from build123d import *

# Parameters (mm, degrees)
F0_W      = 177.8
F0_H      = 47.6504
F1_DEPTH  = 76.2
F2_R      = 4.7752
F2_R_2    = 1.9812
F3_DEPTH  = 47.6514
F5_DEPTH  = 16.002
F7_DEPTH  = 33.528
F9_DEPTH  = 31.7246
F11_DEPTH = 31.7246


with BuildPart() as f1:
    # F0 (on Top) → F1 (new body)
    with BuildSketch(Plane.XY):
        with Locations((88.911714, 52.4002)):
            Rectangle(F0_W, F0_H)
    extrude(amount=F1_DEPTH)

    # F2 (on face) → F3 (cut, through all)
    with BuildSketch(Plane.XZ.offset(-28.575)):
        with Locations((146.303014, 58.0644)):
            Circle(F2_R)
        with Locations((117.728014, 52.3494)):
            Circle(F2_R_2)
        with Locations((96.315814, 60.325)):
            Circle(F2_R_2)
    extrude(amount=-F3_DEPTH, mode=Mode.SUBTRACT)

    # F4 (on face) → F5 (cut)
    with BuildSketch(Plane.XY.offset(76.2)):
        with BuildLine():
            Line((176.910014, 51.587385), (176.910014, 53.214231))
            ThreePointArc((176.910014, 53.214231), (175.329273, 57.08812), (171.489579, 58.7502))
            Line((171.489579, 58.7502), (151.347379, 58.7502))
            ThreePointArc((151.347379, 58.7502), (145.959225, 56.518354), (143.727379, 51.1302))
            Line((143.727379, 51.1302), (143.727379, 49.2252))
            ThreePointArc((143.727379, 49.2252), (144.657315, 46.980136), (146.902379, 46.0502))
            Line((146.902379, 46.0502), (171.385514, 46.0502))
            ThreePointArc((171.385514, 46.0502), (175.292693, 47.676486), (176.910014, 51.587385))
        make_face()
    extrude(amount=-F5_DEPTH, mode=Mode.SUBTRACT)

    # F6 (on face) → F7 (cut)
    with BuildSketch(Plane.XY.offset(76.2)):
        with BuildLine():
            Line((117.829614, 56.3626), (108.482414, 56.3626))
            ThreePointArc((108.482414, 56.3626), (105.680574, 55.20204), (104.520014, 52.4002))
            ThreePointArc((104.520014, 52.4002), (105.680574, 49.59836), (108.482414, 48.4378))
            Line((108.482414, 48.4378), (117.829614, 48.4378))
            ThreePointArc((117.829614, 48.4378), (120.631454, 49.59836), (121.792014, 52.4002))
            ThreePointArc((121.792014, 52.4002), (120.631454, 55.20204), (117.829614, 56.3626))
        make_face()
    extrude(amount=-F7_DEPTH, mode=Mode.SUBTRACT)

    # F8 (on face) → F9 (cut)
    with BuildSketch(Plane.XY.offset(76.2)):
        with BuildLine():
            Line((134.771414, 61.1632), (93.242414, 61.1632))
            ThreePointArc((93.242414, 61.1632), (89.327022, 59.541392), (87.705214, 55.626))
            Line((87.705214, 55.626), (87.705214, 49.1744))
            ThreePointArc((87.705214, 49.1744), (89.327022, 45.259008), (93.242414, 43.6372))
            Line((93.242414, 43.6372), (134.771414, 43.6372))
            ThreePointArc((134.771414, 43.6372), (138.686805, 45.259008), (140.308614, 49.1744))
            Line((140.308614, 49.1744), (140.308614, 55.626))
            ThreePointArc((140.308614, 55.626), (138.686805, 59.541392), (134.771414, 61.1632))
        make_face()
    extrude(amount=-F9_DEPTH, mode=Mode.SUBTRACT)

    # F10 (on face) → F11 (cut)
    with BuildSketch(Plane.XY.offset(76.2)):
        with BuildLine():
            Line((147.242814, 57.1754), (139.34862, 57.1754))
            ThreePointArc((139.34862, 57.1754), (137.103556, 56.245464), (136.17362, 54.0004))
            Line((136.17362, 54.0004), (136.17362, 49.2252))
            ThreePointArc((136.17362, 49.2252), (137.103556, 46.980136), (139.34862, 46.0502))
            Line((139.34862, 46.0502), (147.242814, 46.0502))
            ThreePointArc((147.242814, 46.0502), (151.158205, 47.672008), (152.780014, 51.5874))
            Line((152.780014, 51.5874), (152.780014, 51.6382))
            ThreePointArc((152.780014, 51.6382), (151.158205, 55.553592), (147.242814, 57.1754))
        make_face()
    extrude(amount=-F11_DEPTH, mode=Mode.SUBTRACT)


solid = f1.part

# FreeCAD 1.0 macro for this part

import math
import FreeCAD as App
import Part
import Sketcher
from FreeCAD import Vector
Q = App.Units.Quantity

doc = App.newDocument("Part")
params = doc.addObject("Spreadsheet::Sheet", "Params")
for row, (alias, value) in enumerate([
    ("sketch1_width", "7 in"),
    ("sketch1_height", "1.876 in"),
    ("pad1_length", "3 in"),
    ("sketch2_diameter", "0.376 in"),
    ("sketch2_diameter2", "0.156 in"),
    ("sketch3_radius", "0.3 in"),
    ("sketch3_radius2", "0.218 in"),
    ("sketch3_radius3", "0.125 in"),
    ("sketch3_width", "0.793 in"),
    ("pocket2_length", "0.63 in"),
    ("sketch4_radius", "0.156 in"),
    ("sketch4_width", "0.368 in"),
    ("pocket3_length", "1.32 in"),
    ("sketch5_radius", "0.218 in"),
    ("sketch5_width", "1.635 in"),
    ("sketch5_height", "0.254 in"),
    ("pocket4_length", "1.249 in"),
    ("sketch6_radius", "0.125 in"),
    ("sketch6_radius2", "0.218 in"),
    ("sketch6_height", "0.188 in"),
    ("pocket5_length", "1.249 in"),
], start=1):
    params.set(f"A{row}", alias)
    params.set(f"B{row}", "=" + value)
    params.setAlias(f"B{row}", alias)

body = doc.addObject("PartDesign::Body", "Body")

sketch1 = body.newObject("Sketcher::SketchObject", "Sketch")
sketch1.AttachmentSupport = (doc.getObject("XY_Plane"), [""])
sketch1.MapMode = "FlatFace"
sketch1.addGeometry(Part.LineSegment(Vector(0, 76, 0), Vector(0, 29, 0)), False)
sketch1.addGeometry(Part.LineSegment(Vector(0, 29, 0), Vector(178, 29, 0)), False)
sketch1.addGeometry(Part.LineSegment(Vector(178, 29, 0), Vector(178, 76, 0)), False)
sketch1.addGeometry(Part.LineSegment(Vector(178, 76, 0), Vector(0, 76, 0)), False)
sketch1.addConstraint(Sketcher.Constraint("Coincident", 0, 2, 1, 1))
sketch1.addConstraint(Sketcher.Constraint("Coincident", 1, 2, 2, 1))
sketch1.addConstraint(Sketcher.Constraint("Coincident", 2, 2, 3, 1))
sketch1.addConstraint(Sketcher.Constraint("Coincident", 3, 2, 0, 1))
sketch1.addConstraint(Sketcher.Constraint("Vertical", 0))
sketch1.addConstraint(Sketcher.Constraint("Horizontal", 1))
sketch1.addConstraint(Sketcher.Constraint("Vertical", 2))
sketch1.addConstraint(Sketcher.Constraint("Horizontal", 3))
sketch1.addConstraint(Sketcher.Constraint("DistanceX", 1, 1, 1, 2, Q("7 in")))
sketch1.addConstraint(Sketcher.Constraint("DistanceY", 0, 2, 0, 1, Q("1.876 in")))
sketch1.addConstraint(Sketcher.Constraint("DistanceY", -1, 1, 0, 2, Q("1.125 in")))
sketch1.addConstraint(Sketcher.Constraint("DistanceX", -1, 1, 0, 2, Q("0.011714 mm")))
sketch1.setExpression("Constraints[8]", "Params.sketch1_width")
sketch1.setExpression("Constraints[9]", "Params.sketch1_height")
pad1 = body.newObject("PartDesign::Pad", "Pad")
pad1.Profile = sketch1
pad1.setExpression("Length", "Params.pad1_length")

sketch2 = body.newObject("Sketcher::SketchObject", "Sketch001")
sketch2.AttachmentSupport = (doc.getObject("XZ_Plane"), [""])
sketch2.MapMode = "FlatFace"
sketch2.AttachmentOffset = App.Placement(Vector(0, 0, -1.125 * 25.4), App.Rotation())
sketch2.addGeometry(Part.Circle(Vector(146.3, 58.1, 0), Vector(0, 0, 1), 4.8), False)
sketch2.addGeometry(Part.Circle(Vector(117.7, 52.3, 0), Vector(0, 0, 1), 2), False)
sketch2.addGeometry(Part.Circle(Vector(96.3, 60.3, 0), Vector(0, 0, 1), 2), False)
sketch2.addConstraint(Sketcher.Constraint("Equal", 1, 2))
sketch2.addConstraint(Sketcher.Constraint("Diameter", 0, Q("0.376 in")))
sketch2.addConstraint(Sketcher.Constraint("Diameter", 1, Q("0.156 in")))
sketch2.addConstraint(Sketcher.Constraint("DistanceY", -1, 1, 0, 3, Q("2.286 in")))
sketch2.addConstraint(Sketcher.Constraint("DistanceY", -1, 1, 1, 3, Q("2.061 in")))
sketch2.addConstraint(Sketcher.Constraint("DistanceY", -1, 1, 2, 3, Q("2.375 in")))
sketch2.addConstraint(Sketcher.Constraint("DistanceX", 1, 3, 0, 3, Q("1.125 in")))
sketch2.addConstraint(Sketcher.Constraint("DistanceX", 2, 3, 1, 3, Q("0.843 in")))
sketch2.addConstraint(Sketcher.Constraint("DistanceX", -1, 1, 0, 3, Q("146.303014 mm")))
sketch2.setExpression("Constraints[1]", "Params.sketch2_diameter")
sketch2.setExpression("Constraints[2]", "Params.sketch2_diameter2")
pocket1 = body.newObject("PartDesign::Pocket", "Pocket")
pocket1.Profile = sketch2
pocket1.Type = "ThroughAll"

sketch3 = body.newObject("Sketcher::SketchObject", "Sketch002")
sketch3.AttachmentSupport = (doc.getObject("XY_Plane"), [""])
sketch3.MapMode = "FlatFace"
sketch3.AttachmentOffset = App.Placement(Vector(0, 0, 3 * 25.4), App.Rotation())
sketch3.addGeometry(Part.LineSegment(Vector(176.9, 51.6, 0), Vector(176.9, 53.2, 0)), False)
sketch3.addGeometry(Part.ArcOfCircle(Part.Circle(Vector(171.4, 53.2, 0), Vector(0, 0, 1), 5.5), math.radians(0), math.radians(89)), False)
sketch3.addGeometry(Part.LineSegment(Vector(171.5, 58.8, 0), Vector(151.3, 58.8, 0)), False)
sketch3.addGeometry(Part.ArcOfCircle(Part.Circle(Vector(151.3, 51.1, 0), Vector(0, 0, 1), 7.6), math.radians(90), math.radians(180)), False)
sketch3.addGeometry(Part.LineSegment(Vector(143.7, 51.1, 0), Vector(143.7, 49.2, 0)), False)
sketch3.addGeometry(Part.ArcOfCircle(Part.Circle(Vector(146.9, 49.2, 0), Vector(0, 0, 1), 3.2), math.radians(-180), math.radians(-90)), False)
sketch3.addGeometry(Part.LineSegment(Vector(146.9, 46.1, 0), Vector(171.4, 46.1, 0)), False)
sketch3.addGeometry(Part.ArcOfCircle(Part.Circle(Vector(171.4, 51.6, 0), Vector(0, 0, 1), 5.5), math.radians(-90), math.radians(0)), False)
sketch3.addConstraint(Sketcher.Constraint("Tangent", 0, 2, 1, 1))
sketch3.addConstraint(Sketcher.Constraint("Coincident", 1, 2, 2, 1))
sketch3.addConstraint(Sketcher.Constraint("Tangent", 2, 2, 3, 1))
sketch3.addConstraint(Sketcher.Constraint("Tangent", 3, 2, 4, 1))
sketch3.addConstraint(Sketcher.Constraint("Tangent", 4, 2, 5, 1))
sketch3.addConstraint(Sketcher.Constraint("Tangent", 5, 2, 6, 1))
sketch3.addConstraint(Sketcher.Constraint("Coincident", 6, 2, 7, 1))
sketch3.addConstraint(Sketcher.Constraint("Tangent", 7, 2, 0, 1))
sketch3.addConstraint(Sketcher.Constraint("Vertical", 0))
sketch3.addConstraint(Sketcher.Constraint("Horizontal", 2))
sketch3.addConstraint(Sketcher.Constraint("Vertical", 4))
sketch3.addConstraint(Sketcher.Constraint("Horizontal", 6))
sketch3.addConstraint(Sketcher.Constraint("Equal", 1, 7))
sketch3.addConstraint(Sketcher.Constraint("Radius", 3, Q("0.3 in")))
sketch3.addConstraint(Sketcher.Constraint("Radius", 1, Q("0.218 in")))
sketch3.addConstraint(Sketcher.Constraint("Radius", 5, Q("0.125 in")))
sketch3.addConstraint(Sketcher.Constraint("DistanceY", 5, 2, 3, 2, Q("0.2 in")))
sketch3.addConstraint(Sketcher.Constraint("DistanceX", 2, 2, 2, 1, Q("0.793 in")))
sketch3.addConstraint(Sketcher.Constraint("DistanceY", -1, 1, 3, 3, Q("2.013 in")))
sketch3.addConstraint(Sketcher.Constraint("DistanceX", 7, 3, 6, 2, Q("0.0005 in")))
sketch3.addConstraint(Sketcher.Constraint("DistanceX", 6, 1, 6, 2, Q("24.483135 mm")))
sketch3.addConstraint(Sketcher.Constraint("DistanceX", -1, 1, 5, 3, Q("146.902379 mm")))
sketch3.setExpression("Constraints[13]", "Params.sketch3_radius")
sketch3.setExpression("Constraints[14]", "Params.sketch3_radius2")
sketch3.setExpression("Constraints[15]", "Params.sketch3_radius3")
sketch3.setExpression("Constraints[17]", "Params.sketch3_width")
pocket2 = body.newObject("PartDesign::Pocket", "Pocket001")
pocket2.Profile = sketch3
pocket2.setExpression("Length", "Params.pocket2_length")

sketch4 = body.newObject("Sketcher::SketchObject", "Sketch003")
sketch4.AttachmentSupport = (doc.getObject("XY_Plane"), [""])
sketch4.MapMode = "FlatFace"
sketch4.AttachmentOffset = App.Placement(Vector(0, 0, 3 * 25.4), App.Rotation())
sketch4.addGeometry(Part.LineSegment(Vector(117.8, 56.4, 0), Vector(108.5, 56.4, 0)), False)
sketch4.addGeometry(Part.ArcOfCircle(Part.Circle(Vector(108.5, 52.4, 0), Vector(0, 0, 1), 4), math.radians(90), math.radians(180)), False)
sketch4.addGeometry(Part.ArcOfCircle(Part.Circle(Vector(108.5, 52.4, 0), Vector(0, 0, 1), 4), math.radians(180), math.radians(270)), False)
sketch4.addGeometry(Part.LineSegment(Vector(108.5, 48.4, 0), Vector(117.8, 48.4, 0)), False)
sketch4.addGeometry(Part.ArcOfCircle(Part.Circle(Vector(117.8, 52.4, 0), Vector(0, 0, 1), 4), math.radians(-90), math.radians(0)), False)
sketch4.addGeometry(Part.ArcOfCircle(Part.Circle(Vector(117.8, 52.4, 0), Vector(0, 0, 1), 4), math.radians(0), math.radians(90)), False)
sketch4.addConstraint(Sketcher.Constraint("Tangent", 0, 2, 1, 1))
sketch4.addConstraint(Sketcher.Constraint("Tangent", 1, 2, 2, 1))
sketch4.addConstraint(Sketcher.Constraint("Tangent", 2, 2, 3, 1))
sketch4.addConstraint(Sketcher.Constraint("Tangent", 3, 2, 4, 1))
sketch4.addConstraint(Sketcher.Constraint("Tangent", 4, 2, 5, 1))
sketch4.addConstraint(Sketcher.Constraint("Tangent", 5, 2, 0, 1))
sketch4.addConstraint(Sketcher.Constraint("Horizontal", 0))
sketch4.addConstraint(Sketcher.Constraint("Horizontal", 3))
sketch4.addConstraint(Sketcher.Constraint("Equal", 1, 2))
sketch4.addConstraint(Sketcher.Constraint("Equal", 2, 4))
sketch4.addConstraint(Sketcher.Constraint("Horizontal", 5, 3, 1, 2))
sketch4.addConstraint(Sketcher.Constraint("Horizontal", 1, 2, 4, 2))
sketch4.addConstraint(Sketcher.Constraint("Radius", 1, Q("0.156 in")))
sketch4.addConstraint(Sketcher.Constraint("DistanceX", 0, 2, 0, 1, Q("0.368 in")))
sketch4.addConstraint(Sketcher.Constraint("DistanceY", -1, 1, 1, 3, Q("2.063 in")))
sketch4.addConstraint(Sketcher.Constraint("DistanceX", -1, 1, 1, 3, Q("108.482414 mm")))
sketch4.setExpression("Constraints[12]", "Params.sketch4_radius")
sketch4.setExpression("Constraints[13]", "Params.sketch4_width")
pocket3 = body.newObject("PartDesign::Pocket", "Pocket002")
pocket3.Profile = sketch4
pocket3.setExpression("Length", "Params.pocket3_length")

sketch5 = body.newObject("Sketcher::SketchObject", "Sketch004")
sketch5.AttachmentSupport = (doc.getObject("XY_Plane"), [""])
sketch5.MapMode = "FlatFace"
sketch5.AttachmentOffset = App.Placement(Vector(0, 0, 3 * 25.4), App.Rotation())
sketch5.addGeometry(Part.LineSegment(Vector(135, 61, 0), Vector(93, 61, 0)), False)
sketch5.addGeometry(Part.ArcOfCircle(Part.Circle(Vector(93, 56, 0), Vector(0, 0, 1), 6), math.radians(90), math.radians(180)), False)
sketch5.addGeometry(Part.LineSegment(Vector(88, 56, 0), Vector(88, 49, 0)), False)
sketch5.addGeometry(Part.ArcOfCircle(Part.Circle(Vector(93, 49, 0), Vector(0, 0, 1), 6), math.radians(180), math.radians(270)), False)
sketch5.addGeometry(Part.LineSegment(Vector(93, 44, 0), Vector(135, 44, 0)), False)
sketch5.addGeometry(Part.ArcOfCircle(Part.Circle(Vector(135, 49, 0), Vector(0, 0, 1), 6), math.radians(-90), math.radians(0)), False)
sketch5.addGeometry(Part.LineSegment(Vector(140, 49, 0), Vector(140, 56, 0)), False)
sketch5.addGeometry(Part.ArcOfCircle(Part.Circle(Vector(135, 56, 0), Vector(0, 0, 1), 6), math.radians(0), math.radians(90)), False)
sketch5.addConstraint(Sketcher.Constraint("Tangent", 0, 2, 1, 1))
sketch5.addConstraint(Sketcher.Constraint("Tangent", 1, 2, 2, 1))
sketch5.addConstraint(Sketcher.Constraint("Tangent", 2, 2, 3, 1))
sketch5.addConstraint(Sketcher.Constraint("Tangent", 3, 2, 4, 1))
sketch5.addConstraint(Sketcher.Constraint("Tangent", 4, 2, 5, 1))
sketch5.addConstraint(Sketcher.Constraint("Tangent", 5, 2, 6, 1))
sketch5.addConstraint(Sketcher.Constraint("Tangent", 6, 2, 7, 1))
sketch5.addConstraint(Sketcher.Constraint("Tangent", 7, 2, 0, 1))
sketch5.addConstraint(Sketcher.Constraint("Horizontal", 0))
sketch5.addConstraint(Sketcher.Constraint("Vertical", 2))
sketch5.addConstraint(Sketcher.Constraint("Horizontal", 4))
sketch5.addConstraint(Sketcher.Constraint("Vertical", 6))
sketch5.addConstraint(Sketcher.Constraint("Equal", 1, 3))
sketch5.addConstraint(Sketcher.Constraint("Equal", 3, 5))
sketch5.addConstraint(Sketcher.Constraint("Equal", 5, 7))
sketch5.addConstraint(Sketcher.Constraint("Radius", 1, Q("0.218 in")))
sketch5.addConstraint(Sketcher.Constraint("DistanceX", 0, 2, 0, 1, Q("1.635 in")))
sketch5.addConstraint(Sketcher.Constraint("DistanceY", 2, 2, 2, 1, Q("0.254 in")))
sketch5.addConstraint(Sketcher.Constraint("DistanceY", -1, 1, 1, 3, Q("2.19 in")))
sketch5.addConstraint(Sketcher.Constraint("DistanceX", -1, 1, 1, 3, Q("93.242413 mm")))
sketch5.setExpression("Constraints[15]", "Params.sketch5_radius")
sketch5.setExpression("Constraints[16]", "Params.sketch5_width")
sketch5.setExpression("Constraints[17]", "Params.sketch5_height")
pocket4 = body.newObject("PartDesign::Pocket", "Pocket003")
pocket4.Profile = sketch5
pocket4.setExpression("Length", "Params.pocket4_length")

sketch6 = body.newObject("Sketcher::SketchObject", "Sketch005")
sketch6.AttachmentSupport = (doc.getObject("XY_Plane"), [""])
sketch6.MapMode = "FlatFace"
sketch6.AttachmentOffset = App.Placement(Vector(0, 0, 3 * 25.4), App.Rotation())
sketch6.addGeometry(Part.LineSegment(Vector(147.24, 57.18, 0), Vector(139.35, 57.18, 0)), False)
sketch6.addGeometry(Part.ArcOfCircle(Part.Circle(Vector(139.35, 54, 0), Vector(0, 0, 1), 3.18), math.radians(90), math.radians(180)), False)
sketch6.addGeometry(Part.LineSegment(Vector(136.17, 54, 0), Vector(136.17, 49.23, 0)), False)
sketch6.addGeometry(Part.ArcOfCircle(Part.Circle(Vector(139.35, 49.23, 0), Vector(0, 0, 1), 3.18), math.radians(-180), math.radians(-90)), False)
sketch6.addGeometry(Part.LineSegment(Vector(139.35, 46.05, 0), Vector(147.24, 46.05, 0)), False)
sketch6.addGeometry(Part.ArcOfCircle(Part.Circle(Vector(147.24, 51.59, 0), Vector(0, 0, 1), 5.54), math.radians(-90), math.radians(0)), False)
sketch6.addGeometry(Part.LineSegment(Vector(152.78, 51.59, 0), Vector(152.78, 51.64, 0)), False)
sketch6.addGeometry(Part.ArcOfCircle(Part.Circle(Vector(147.24, 51.64, 0), Vector(0, 0, 1), 5.54), math.radians(0), math.radians(90)), False)
sketch6.addConstraint(Sketcher.Constraint("Tangent", 0, 2, 1, 1))
sketch6.addConstraint(Sketcher.Constraint("Tangent", 1, 2, 2, 1))
sketch6.addConstraint(Sketcher.Constraint("Tangent", 2, 2, 3, 1))
sketch6.addConstraint(Sketcher.Constraint("Tangent", 3, 2, 4, 1))
sketch6.addConstraint(Sketcher.Constraint("Tangent", 4, 2, 5, 1))
sketch6.addConstraint(Sketcher.Constraint("Tangent", 5, 2, 6, 1))
sketch6.addConstraint(Sketcher.Constraint("Tangent", 6, 2, 7, 1))
sketch6.addConstraint(Sketcher.Constraint("Tangent", 7, 2, 0, 1))
sketch6.addConstraint(Sketcher.Constraint("Horizontal", 0))
sketch6.addConstraint(Sketcher.Constraint("Vertical", 2))
sketch6.addConstraint(Sketcher.Constraint("Horizontal", 4))
sketch6.addConstraint(Sketcher.Constraint("Vertical", 6))
sketch6.addConstraint(Sketcher.Constraint("Equal", 1, 3))
sketch6.addConstraint(Sketcher.Constraint("Equal", 5, 7))
sketch6.addConstraint(Sketcher.Constraint("Radius", 1, Q("0.125 in")))
sketch6.addConstraint(Sketcher.Constraint("Radius", 5, Q("0.218 in")))
sketch6.addConstraint(Sketcher.Constraint("DistanceY", 2, 2, 2, 1, Q("0.188 in")))
sketch6.addConstraint(Sketcher.Constraint("DistanceY", -1, 1, 1, 3, Q("2.126 in")))
sketch6.addConstraint(Sketcher.Constraint("DistanceX", 0, 2, 0, 1, Q("7.894194 mm")))
sketch6.addConstraint(Sketcher.Constraint("DistanceX", -1, 1, 1, 3, Q("139.34862 mm")))
sketch6.setExpression("Constraints[14]", "Params.sketch6_radius")
sketch6.setExpression("Constraints[15]", "Params.sketch6_radius2")
sketch6.setExpression("Constraints[16]", "Params.sketch6_height")
pocket5 = body.newObject("PartDesign::Pocket", "Pocket004")
pocket5.Profile = sketch6
pocket5.setExpression("Length", "Params.pocket5_length")

doc.recompute()
